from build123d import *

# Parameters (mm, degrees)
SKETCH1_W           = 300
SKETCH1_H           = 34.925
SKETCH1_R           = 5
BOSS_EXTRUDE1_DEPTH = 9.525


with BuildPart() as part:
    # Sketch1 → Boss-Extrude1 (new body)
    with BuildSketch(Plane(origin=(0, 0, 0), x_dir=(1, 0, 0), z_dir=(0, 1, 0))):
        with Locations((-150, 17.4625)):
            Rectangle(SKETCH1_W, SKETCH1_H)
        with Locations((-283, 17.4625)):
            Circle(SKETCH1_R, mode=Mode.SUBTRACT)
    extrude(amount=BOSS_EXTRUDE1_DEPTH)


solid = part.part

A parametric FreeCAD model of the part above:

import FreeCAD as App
import Part
import Sketcher
from FreeCAD import Vector


def add_polygon(sketch, points):
    """Adds a closed chain of lines whose ends are joined by coincident constraints."""
    first, n = sketch.GeometryCount, len(points)
    for a, b in zip(points, points[1:] + points[:1]):
        sketch.addGeometry(Part.LineSegment(App.Vector(*a, 0), App.Vector(*b, 0)), False)
    for i in range(n):
        sketch.addConstraint(Sketcher.Constraint("Coincident", first + i, 2, first + (i + 1) % n, 1))

doc = App.newDocument("Part")
body = doc.addObject("PartDesign::Body", "Body")

# Sketch on XZ plane
sketch1 = body.newObject("Sketcher::SketchObject", "Sketch")
sketch1.AttachmentSupport = (doc.getObject("XZ_Plane"), [""])
sketch1.MapMode = "FlatFace"
add_polygon(sketch1, [(-300, -34.925), (-300, 0), (0, 0), (0, -34.925)])  # lines 0-3
sketch1.addGeometry(Part.Circle(Vector(-283, -17.4625, 0), Vector(0, 0, 1), 5), False)  # 4
sketch1.addConstraint([
    Sketcher.Constraint("Vertical", 0),
    Sketcher.Constraint("Horizontal", 1),
    Sketcher.Constraint("Vertical", 2),
    Sketcher.Constraint("Horizontal", 3),
    Sketcher.Constraint("Coincident", 1, 2, -1, 1),
    Sketcher.Constraint("Diameter", 4, 10.0),
    Sketcher.Constraint("DistanceX", 1, 1, 1, 2, 300.0),
    Sketcher.Constraint("DistanceX", 4, 3, -1, 1, 283.0),
    Sketcher.Constraint("DistanceY", 0, 1, 0, 2, 34.925),
    Sketcher.Constraint("DistanceY", 4, 3, -1, 1, 17.4625),
])
pad1 = body.newObject("PartDesign::Pad", "Pad")
pad1.Profile = sketch1
pad1.Length = 9.525
pad1.Reversed = True

doc.recompute()
